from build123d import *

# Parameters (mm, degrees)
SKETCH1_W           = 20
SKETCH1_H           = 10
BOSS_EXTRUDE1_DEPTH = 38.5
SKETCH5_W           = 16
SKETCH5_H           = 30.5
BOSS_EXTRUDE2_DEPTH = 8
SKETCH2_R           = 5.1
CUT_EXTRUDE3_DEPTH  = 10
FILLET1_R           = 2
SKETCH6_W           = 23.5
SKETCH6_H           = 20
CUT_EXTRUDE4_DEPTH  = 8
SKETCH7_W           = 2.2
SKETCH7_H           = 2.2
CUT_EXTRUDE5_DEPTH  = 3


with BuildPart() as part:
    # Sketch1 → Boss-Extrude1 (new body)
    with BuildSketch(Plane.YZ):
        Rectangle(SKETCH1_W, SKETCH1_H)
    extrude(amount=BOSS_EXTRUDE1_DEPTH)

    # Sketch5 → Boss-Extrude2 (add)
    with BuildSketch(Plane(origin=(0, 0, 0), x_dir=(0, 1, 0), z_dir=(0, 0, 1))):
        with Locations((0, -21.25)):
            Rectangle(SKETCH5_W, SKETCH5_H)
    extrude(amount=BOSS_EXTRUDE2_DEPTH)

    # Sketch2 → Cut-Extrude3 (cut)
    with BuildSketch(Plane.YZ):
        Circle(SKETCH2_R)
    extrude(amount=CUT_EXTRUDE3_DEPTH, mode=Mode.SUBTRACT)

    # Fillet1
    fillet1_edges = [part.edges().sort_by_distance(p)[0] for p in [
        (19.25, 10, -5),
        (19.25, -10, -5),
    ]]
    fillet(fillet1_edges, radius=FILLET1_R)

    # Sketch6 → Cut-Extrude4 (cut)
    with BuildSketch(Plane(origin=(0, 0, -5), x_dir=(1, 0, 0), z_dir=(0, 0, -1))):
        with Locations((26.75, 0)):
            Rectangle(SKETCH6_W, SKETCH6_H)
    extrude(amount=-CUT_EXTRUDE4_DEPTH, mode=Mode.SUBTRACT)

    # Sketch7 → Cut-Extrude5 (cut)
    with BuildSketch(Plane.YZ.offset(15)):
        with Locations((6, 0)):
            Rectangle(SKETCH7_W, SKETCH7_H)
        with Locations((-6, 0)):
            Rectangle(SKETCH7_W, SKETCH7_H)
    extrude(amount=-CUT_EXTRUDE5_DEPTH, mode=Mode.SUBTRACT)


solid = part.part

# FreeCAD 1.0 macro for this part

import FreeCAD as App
import Part
import Sketcher


def edges_at(feature, points):
    """Names of the edges that pass closest to the given points."""
    edges = feature.Shape.Edges
    near = lambda p: min(range(len(edges)), key=lambda i: edges[i].distToShape(Part.Vertex(*p))[0])
    return sorted({f"Edge{near(p) + 1}" for p in points})


def add_polygon(sketch, points):
    """Adds a closed chain of lines whose ends are joined by coincident constraints."""
    first, n = sketch.GeometryCount, len(points)
    for a, b in zip(points, points[1:] + points[:1]):
        sketch.addGeometry(Part.LineSegment(App.Vector(*a, 0), App.Vector(*b, 0)), False)
    for i in range(n):
        sketch.addConstraint(Sketcher.Constraint("Coincident", first + i, 2, first + (i + 1) % n, 1))

doc = App.newDocument("Part")
body = doc.addObject("PartDesign::Body", "Body")

sketch1 = body.newObject("Sketcher::SketchObject", "Sketch")
sketch1.AttachmentSupport = (doc.getObject("YZ_Plane"), [""])
sketch1.MapMode = "FlatFace"
add_polygon(sketch1, [(-10, 5), (-10, -5), (10, -5), (10, 5)])
sketch1.addConstraint(Sketcher.Constraint("Vertical", 0))
sketch1.addConstraint(Sketcher.Constraint("Horizontal", 1))
sketch1.addConstraint(Sketcher.Constraint("Vertical", 2))
sketch1.addConstraint(Sketcher.Constraint("Horizontal", 3))
sketch1.addConstraint(Sketcher.Constraint("Symmetric", 0, 2, 2, 2, -1, 1))
sketch1.addConstraint(Sketcher.Constraint("DistanceX", 1, 1, 1, 2, 20.0))
sketch1.addConstraint(Sketcher.Constraint("DistanceY", 0, 2, 0, 1, 10.0))
pad1 = body.newObject("PartDesign::Pad", "Pad")
pad1.Profile = sketch1
pad1.Length = 38.5

sketch2 = body.newObject("Sketcher::SketchObject", "Sketch001")
sketch2.AttachmentSupport = (doc.getObject("XY_Plane"), [""])
sketch2.MapMode = "FlatFace"
add_polygon(sketch2, [(6, -8), (36, -8), (36, 8), (6, 8)])
sketch2.addConstraint(Sketcher.Constraint("Horizontal", 0))
sketch2.addConstraint(Sketcher.Constraint("Vertical", 1))
sketch2.addConstraint(Sketcher.Constraint("Horizontal", 2))
sketch2.addConstraint(Sketcher.Constraint("Vertical", 3))
sketch2.addConstraint(Sketcher.Constraint("DistanceY", 1, 1, 1, 2, 16.0))
sketch2.addConstraint(Sketcher.Constraint("DistanceX", 0, 1, 0, 2, 30.5))
sketch2.addConstraint(Sketcher.Constraint("DistanceY", 0, 2, -1, 1, 8.0))
sketch2.addConstraint(Sketcher.Constraint("DistanceX", -1, 1, 2, 2, 6.0))
pad2 = body.newObject("PartDesign::Pad", "Pad001")
pad2.Profile = sketch2
pad2.Length = 8

sketch3 = body.newObject("Sketcher::SketchObject", "Sketch002")
sketch3.AttachmentSupport = (doc.getObject("YZ_Plane"), [""])
sketch3.MapMode = "FlatFace"
sketch3.addGeometry(Part.Circle(App.Vector(0, 0, 0), App.Vector(0, 0, 1), 5), False)
sketch3.addConstraint(Sketcher.Constraint("Coincident", 0, 3, -1, 1))
sketch3.addConstraint(Sketcher.Constraint("Diameter", 0, 10.2))
pocket1 = body.newObject("PartDesign::Pocket", "Pocket")
pocket1.Profile = sketch3
pocket1.Length = 10
pocket1.Reversed = True
doc.recompute()

fillet = body.newObject("PartDesign::Fillet", "Fillet")
fillet.Base = (pocket1, edges_at(pocket1, [(19.25, 10, -5), (19.25, -10, -5)]))
fillet.Radius = 2

sketch4 = body.newObject("Sketcher::SketchObject", "Sketch003")
sketch4.AttachmentSupport = (doc.getObject("XY_Plane"), [""])
sketch4.MapMode = "FlatFace"
sketch4.AttachmentOffset = App.Placement(App.Vector(0, 0, -5), App.Rotation())
add_polygon(sketch4, [(15, -10), (15, 10), (38, 10), (38, -10)])
sketch4.addConstraint(Sketcher.Constraint("Vertical", 0))
sketch4.addConstraint(Sketcher.Constraint("Horizontal", 1))
sketch4.addConstraint(Sketcher.Constraint("Vertical", 2))
sketch4.addConstraint(Sketcher.Constraint("Horizontal", 3))
sketch4.addConstraint(Sketcher.Constraint("DistanceY", 0, 1, 0, 2, 20.0))
sketch4.addConstraint(Sketcher.Constraint("DistanceX", 1, 1, 1, 2, 23.5))
sketch4.addConstraint(Sketcher.Constraint("DistanceX", -1, 1, 0, 2, 15.0))
sketch4.addConstraint(Sketcher.Constraint("DistanceY", -1, 1, 0, 2, 10.0))
pocket2 = body.newObject("PartDesign::Pocket", "Pocket001")
pocket2.Profile = sketch4
pocket2.Length = 8
pocket2.Reversed = True

sketch5 = body.newObject("Sketcher::SketchObject", "Sketch004")
sketch5.AttachmentSupport = (doc.getObject("YZ_Plane"), [""])
sketch5.MapMode = "FlatFace"
sketch5.AttachmentOffset = App.Placement(App.Vector(0, 0, 15), App.Rotation())
add_polygon(sketch5, [(4.9, 1.1), (4.9, -1.1), (7.1, -1.1), (7.1, 1.1)])
add_polygon(sketch5, [(-7.1, 1.1), (-7.1, -1.1), (-4.9, -1.1), (-4.9, 1.1)])
sketch5.addConstraint(Sketcher.Constraint("Vertical", 0))
sketch5.addConstraint(Sketcher.Constraint("Horizontal", 1))
sketch5.addConstraint(Sketcher.Constraint("Vertical", 2))
sketch5.addConstraint(Sketcher.Constraint("Horizontal", 3))
sketch5.addConstraint(Sketcher.Constraint("Vertical", 4))
sketch5.addConstraint(Sketcher.Constraint("Horizontal", 5))
sketch5.addConstraint(Sketcher.Constraint("Vertical", 6))
sketch5.addConstraint(Sketcher.Constraint("Horizontal", 7))
sketch5.addConstraint(Sketcher.Constraint("Symmetric", 2, 2, 4, 2, -1, 1))
sketch5.addConstraint(Sketcher.Constraint("Symmetric", 0, 2, 6, 2, -1, 1))
sketch5.addConstraint(Sketcher.Constraint("Horizontal", 1, 2, 4, 2))
sketch5.addConstraint(Sketcher.Constraint("Equal", 7, 0))
sketch5.addConstraint(Sketcher.Constraint("DistanceX", 1, 1, 1, 2, 2.2))
sketch5.addConstraint(Sketcher.Constraint("DistanceX", 4, 2, 0, 2, 12.0))
pocket3 = body.newObject("PartDesign::Pocket", "Pocket002")
pocket3.Profile = sketch5
pocket3.Length = 3

doc.recompute()
